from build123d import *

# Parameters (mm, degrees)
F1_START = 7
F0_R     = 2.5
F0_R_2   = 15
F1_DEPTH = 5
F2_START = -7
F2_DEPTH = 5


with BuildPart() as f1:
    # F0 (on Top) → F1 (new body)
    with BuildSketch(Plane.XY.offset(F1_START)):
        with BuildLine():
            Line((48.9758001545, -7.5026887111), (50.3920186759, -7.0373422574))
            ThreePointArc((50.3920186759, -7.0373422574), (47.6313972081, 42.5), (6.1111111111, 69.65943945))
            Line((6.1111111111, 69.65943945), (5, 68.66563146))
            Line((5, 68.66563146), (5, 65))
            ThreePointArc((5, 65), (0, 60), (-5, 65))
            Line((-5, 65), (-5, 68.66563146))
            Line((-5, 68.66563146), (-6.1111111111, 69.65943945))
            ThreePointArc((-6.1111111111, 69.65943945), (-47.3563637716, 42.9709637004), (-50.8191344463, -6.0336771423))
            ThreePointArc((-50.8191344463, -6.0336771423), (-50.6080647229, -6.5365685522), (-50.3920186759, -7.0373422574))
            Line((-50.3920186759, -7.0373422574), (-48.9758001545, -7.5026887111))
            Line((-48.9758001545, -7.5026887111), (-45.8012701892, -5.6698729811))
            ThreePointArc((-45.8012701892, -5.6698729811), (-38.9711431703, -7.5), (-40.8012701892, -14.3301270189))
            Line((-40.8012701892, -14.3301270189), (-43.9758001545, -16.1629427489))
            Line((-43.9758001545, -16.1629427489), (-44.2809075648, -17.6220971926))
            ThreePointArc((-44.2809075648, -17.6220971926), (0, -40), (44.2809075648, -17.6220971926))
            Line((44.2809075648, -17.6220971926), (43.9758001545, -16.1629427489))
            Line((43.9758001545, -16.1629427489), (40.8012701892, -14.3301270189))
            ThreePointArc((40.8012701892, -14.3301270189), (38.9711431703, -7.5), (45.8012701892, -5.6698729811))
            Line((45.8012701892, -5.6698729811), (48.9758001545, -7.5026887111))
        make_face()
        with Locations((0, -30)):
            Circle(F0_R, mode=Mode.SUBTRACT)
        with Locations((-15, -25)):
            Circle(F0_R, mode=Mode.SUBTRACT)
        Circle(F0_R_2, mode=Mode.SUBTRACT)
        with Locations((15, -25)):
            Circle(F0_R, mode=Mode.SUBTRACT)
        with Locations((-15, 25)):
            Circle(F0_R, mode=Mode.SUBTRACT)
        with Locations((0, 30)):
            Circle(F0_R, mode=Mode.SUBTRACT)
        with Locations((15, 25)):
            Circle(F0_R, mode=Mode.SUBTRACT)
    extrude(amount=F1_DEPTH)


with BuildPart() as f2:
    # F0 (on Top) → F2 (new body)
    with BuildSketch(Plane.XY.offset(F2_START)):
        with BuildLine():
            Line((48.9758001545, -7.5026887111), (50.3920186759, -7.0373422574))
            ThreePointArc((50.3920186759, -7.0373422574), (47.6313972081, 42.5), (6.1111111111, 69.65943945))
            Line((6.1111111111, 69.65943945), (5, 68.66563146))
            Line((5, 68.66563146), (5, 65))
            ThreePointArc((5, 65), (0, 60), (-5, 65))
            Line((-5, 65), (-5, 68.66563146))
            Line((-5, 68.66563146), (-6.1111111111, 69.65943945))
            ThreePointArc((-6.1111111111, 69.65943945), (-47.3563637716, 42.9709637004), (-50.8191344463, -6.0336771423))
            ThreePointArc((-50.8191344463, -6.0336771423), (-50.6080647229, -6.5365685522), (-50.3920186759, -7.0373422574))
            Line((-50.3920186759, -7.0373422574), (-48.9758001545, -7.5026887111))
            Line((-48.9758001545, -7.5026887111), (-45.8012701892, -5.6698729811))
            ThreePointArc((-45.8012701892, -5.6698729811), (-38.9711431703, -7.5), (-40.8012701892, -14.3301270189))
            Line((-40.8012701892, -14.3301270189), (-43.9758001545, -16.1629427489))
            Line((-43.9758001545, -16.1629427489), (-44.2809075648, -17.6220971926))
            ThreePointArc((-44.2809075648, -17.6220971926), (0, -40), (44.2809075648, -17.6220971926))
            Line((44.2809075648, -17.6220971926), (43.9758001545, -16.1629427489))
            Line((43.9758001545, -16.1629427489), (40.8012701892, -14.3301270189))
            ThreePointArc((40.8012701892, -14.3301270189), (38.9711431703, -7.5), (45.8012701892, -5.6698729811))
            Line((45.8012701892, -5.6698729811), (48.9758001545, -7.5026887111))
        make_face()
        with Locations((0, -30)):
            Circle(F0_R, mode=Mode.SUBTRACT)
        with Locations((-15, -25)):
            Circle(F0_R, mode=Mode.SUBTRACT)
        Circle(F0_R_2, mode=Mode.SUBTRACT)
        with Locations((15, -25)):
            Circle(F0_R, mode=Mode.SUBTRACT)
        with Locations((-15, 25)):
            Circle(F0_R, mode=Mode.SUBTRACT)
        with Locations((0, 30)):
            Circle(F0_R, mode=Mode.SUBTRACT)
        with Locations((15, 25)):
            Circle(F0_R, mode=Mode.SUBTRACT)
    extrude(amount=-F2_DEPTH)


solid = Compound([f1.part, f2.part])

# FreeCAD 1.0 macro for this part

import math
import FreeCAD as App
import Part
import Sketcher
Q = App.Units.Quantity

doc = App.newDocument("Part")
body = doc.addObject("PartDesign::Body", "Body")

# Sketch on XY plane
sketch1 = doc.addObject("Sketcher::SketchObject", "Sketch")
body.addObject(sketch1)
sketch1.AttachmentSupport = (doc.XY_Plane, [""])
sketch1.MapMode = "FlatFace"
sketch1.AttachmentOffset = App.Placement(App.Vector(0, 0, 7), App.Rotation())
sketch1.addGeometry(Part.LineSegment(App.Vector(48.9758, -7.502689, 0), App.Vector(50.392019, -7.037342, 0)), False)
sketch1.addGeometry(Part.ArcOfCircle(Part.Circle(App.Vector(0, 15, 0), App.Vector(0, 0, 1), 55), math.radians(-23.62063), math.radians(83.62063)), False)
sketch1.addGeometry(Part.LineSegment(App.Vector(6.111111, 69.659439, 0), App.Vector(5, 68.665631, 0)), False)
sketch1.addGeometry(Part.LineSegment(App.Vector(5, 68.665631, 0), App.Vector(5, 65, 0)), False)
sketch1.addGeometry(Part.ArcOfCircle(Part.Circle(App.Vector(0, 65, 0), App.Vector(0, 0, 1), 5), math.radians(180), math.radians(360)), False)
sketch1.addGeometry(Part.LineSegment(App.Vector(-5, 65, 0), App.Vector(-5, 68.665631, 0)), False)
sketch1.addGeometry(Part.LineSegment(App.Vector(-5, 68.665631, 0), App.Vector(-6.111111, 69.659439, 0)), False)
sketch1.addGeometry(Part.ArcOfCircle(Part.Circle(App.Vector(0, 15, 0), App.Vector(0, 0, 1), 55), math.radians(96.37937), math.radians(202.484315)), False)
sketch1.addGeometry(Part.ArcOfCircle(Part.Circle(App.Vector(0, 15, 0), App.Vector(0, 0, 1), 55), math.radians(-157.515685), math.radians(-156.37937)), False)
sketch1.addGeometry(Part.LineSegment(App.Vector(-50.392019, -7.037342, 0), App.Vector(-48.9758, -7.502689, 0)), False)
sketch1.addGeometry(Part.LineSegment(App.Vector(-48.9758, -7.502689, 0), App.Vector(-45.80127, -5.669873, 0)), False)
sketch1.addGeometry(Part.ArcOfCircle(Part.Circle(App.Vector(-43.30127, -10, 0), App.Vector(0, 0, 1), 5), math.radians(-60), math.radians(120)), False)
sketch1.addGeometry(Part.LineSegment(App.Vector(-40.80127, -14.330127, 0), App.Vector(-43.9758, -16.162943, 0)), False)
sketch1.addGeometry(Part.LineSegment(App.Vector(-43.9758, -16.162943, 0), App.Vector(-44.280908, -17.622097, 0)), False)
sketch1.addGeometry(Part.ArcOfCircle(Part.Circle(App.Vector(0, 15, 0), App.Vector(0, 0, 1), 55), math.radians(-143.62063), math.radians(-36.37937)), False)
sketch1.addGeometry(Part.LineSegment(App.Vector(44.280908, -17.622097, 0), App.Vector(43.9758, -16.162943, 0)), False)
sketch1.addGeometry(Part.LineSegment(App.Vector(43.9758, -16.162943, 0), App.Vector(40.80127, -14.330127, 0)), False)
sketch1.addGeometry(Part.ArcOfCircle(Part.Circle(App.Vector(43.30127, -10, 0), App.Vector(0, 0, 1), 5), math.radians(60), math.radians(240)), False)
sketch1.addGeometry(Part.LineSegment(App.Vector(45.80127, -5.669873, 0), App.Vector(48.9758, -7.502689, 0)), False)
sketch1.addGeometry(Part.Circle(App.Vector(-15, -25, 0), App.Vector(0, 0, 1), 2.5), False)
sketch1.addGeometry(Part.Circle(App.Vector(0, -30, 0), App.Vector(0, 0, 1), 2.5), False)
sketch1.addGeometry(Part.Circle(App.Vector(15, -25, 0), App.Vector(0, 0, 1), 2.5), False)
sketch1.addGeometry(Part.Circle(App.Vector(-15, 25, 0), App.Vector(0, 0, 1), 2.5), False)
sketch1.addGeometry(Part.Circle(App.Vector(0, 0, 0), App.Vector(0, 0, 1), 15), False)
sketch1.addGeometry(Part.Circle(App.Vector(0, 30, 0), App.Vector(0, 0, 1), 2.5), False)
sketch1.addGeometry(Part.Circle(App.Vector(15, 25, 0), App.Vector(0, 0, 1), 2.5), False)
sketch1.addConstraint(Sketcher.Constraint("Coincident", 0, 2, 1, 1))
sketch1.addConstraint(Sketcher.Constraint("Coincident", 1, 2, 2, 1))
sketch1.addConstraint(Sketcher.Constraint("Coincident", 2, 2, 3, 1))
sketch1.addConstraint(Sketcher.Constraint("Tangent", 3, 2, 4, 2))
sketch1.addConstraint(Sketcher.Constraint("Tangent", 4, 1, 5, 1))
sketch1.addConstraint(Sketcher.Constraint("Coincident", 5, 2, 6, 1))
sketch1.addConstraint(Sketcher.Constraint("Coincident", 6, 2, 7, 1))
sketch1.addConstraint(Sketcher.Constraint("Tangent", 7, 2, 8, 1))
sketch1.addConstraint(Sketcher.Constraint("Coincident", 8, 2, 9, 1))
sketch1.addConstraint(Sketcher.Constraint("Coincident", 9, 2, 10, 1))
sketch1.addConstraint(Sketcher.Constraint("Tangent", 10, 2, 11, 2))
sketch1.addConstraint(Sketcher.Constraint("Tangent", 11, 1, 12, 1))
sketch1.addConstraint(Sketcher.Constraint("Coincident", 12, 2, 13, 1))
sketch1.addConstraint(Sketcher.Constraint("Coincident", 13, 2, 14, 1))
sketch1.addConstraint(Sketcher.Constraint("Coincident", 14, 2, 15, 1))
sketch1.addConstraint(Sketcher.Constraint("Coincident", 15, 2, 16, 1))
sketch1.addConstraint(Sketcher.Constraint("Tangent", 16, 2, 17, 2))
sketch1.addConstraint(Sketcher.Constraint("Tangent", 17, 1, 18, 1))
sketch1.addConstraint(Sketcher.Constraint("Coincident", 18, 2, 0, 1))
sketch1.addConstraint(Sketcher.Constraint("Vertical", 3))
sketch1.addConstraint(Sketcher.Constraint("Vertical", 5))
sketch1.addConstraint(Sketcher.Constraint("Coincident", 23, 3, -1, 1))
sketch1.addConstraint(Sketcher.Constraint("Coincident", 7, 3, 1, 3))
sketch1.addConstraint(Sketcher.Constraint("Coincident", 14, 3, 1, 3))
sketch1.addConstraint(Sketcher.Constraint("Equal", 1, 7))
sketch1.addConstraint(Sketcher.Constraint("Equal", 7, 8))
sketch1.addConstraint(Sketcher.Constraint("Equal", 4, 11))
sketch1.addConstraint(Sketcher.Constraint("Equal", 8, 14))
sketch1.addConstraint(Sketcher.Constraint("Equal", 11, 17))
sketch1.addConstraint(Sketcher.Constraint("Equal", 19, 20))
sketch1.addConstraint(Sketcher.Constraint("Equal", 20, 21))
sketch1.addConstraint(Sketcher.Constraint("Equal", 21, 22))
sketch1.addConstraint(Sketcher.Constraint("Equal", 22, 24))
sketch1.addConstraint(Sketcher.Constraint("Equal", 24, 25))
sketch1.addConstraint(Sketcher.Constraint("Symmetric", 21, 3, 22, 3, -1, 1))
sketch1.addConstraint(Sketcher.Constraint("Symmetric", 20, 3, 24, 3, -1, 1))
sketch1.addConstraint(Sketcher.Constraint("Symmetric", 19, 3, 25, 3, -1, 1))
sketch1.addConstraint(Sketcher.Constraint("Symmetric", 11, 3, 17, 3, -2))
sketch1.addConstraint(Sketcher.Constraint("Symmetric", 19, 3, 21, 3, -2))
sketch1.addConstraint(Sketcher.Constraint("Symmetric", 2, 2, 5, 2, -2))
sketch1.addConstraint(Sketcher.Constraint("Symmetric", 1, 2, 6, 2, -2))
sketch1.addConstraint(Sketcher.Constraint("Symmetric", 12, 2, 15, 2, -2))
sketch1.addConstraint(Sketcher.Constraint("Symmetric", 9, 2, 18, 2, -2))
sketch1.addConstraint(Sketcher.Constraint("PointOnObject", 20, 3, -2))
sketch1.addConstraint(Sketcher.Constraint("Parallel", 10, 12))
sketch1.addConstraint(Sketcher.Constraint("Horizontal", 0, 2, 8, 2))
sketch1.addConstraint(Sketcher.Constraint("Horizontal", 13, 2, 14, 2))
sketch1.addConstraint(Sketcher.Constraint("Equal", 0, 2))
sketch1.addConstraint(Sketcher.Constraint("Equal", 10, 12))
sketch1.addConstraint(Sketcher.Constraint("Equal", 9, 13))
sketch1.addConstraint(Sketcher.Constraint("Diameter", 19, 5.0))
sketch1.addConstraint(Sketcher.Constraint("Diameter", 23, 30.0))
sketch1.addConstraint(Sketcher.Constraint("Radius", 1, 55.0))
sketch1.addConstraint(Sketcher.Constraint("Radius", 4, 5.0))
sketch1.addConstraint(Sketcher.Constraint("Angle", 10, Q("30 deg")))
sketch1.addConstraint(Sketcher.Constraint("DistanceY", -1, 1, 1, 3, 15.0))
sketch1.addConstraint(Sketcher.Constraint("DistanceY", -1, 1, 4, 3, 65.0))
sketch1.addConstraint(Sketcher.Constraint("DistanceY", 11, 3, -1, 1, 10.0))
sketch1.addConstraint(Sketcher.Constraint("DistanceX", 19, 3, -1, 1, 15.0))
sketch1.addConstraint(Sketcher.Constraint("DistanceY", 19, 3, -1, 1, 25.0))
sketch1.addConstraint(Sketcher.Constraint("DistanceY", 20, 3, -1, 1, 30.0))
sketch1.addConstraint(Sketcher.Constraint("DistanceY", 3, 2, 3, 1, 3.665631))
sketch1.addConstraint(Sketcher.Constraint("DistanceX", 9, 2, -1, 1, 48.9758))
sketch1.addConstraint(Sketcher.Constraint("DistanceY", 12, 2, 8, 2, 9.1256))
sketch1.addConstraint(Sketcher.Constraint("Distance", 0, 1.490712))
sketch1.addConstraint(Sketcher.Constraint("DistanceY", 9, 2, 7, 2, 1.469012))
pad1 = doc.addObject("PartDesign::Pad", "Pad")
body.addObject(pad1)
pad1.Profile = sketch1
pad1.Length = 5
body2 = doc.addObject("PartDesign::Body", "Body001")

# Sketch on XY plane
sketch2 = doc.addObject("Sketcher::SketchObject", "Sketch001")
body2.addObject(sketch2)
sketch2.AttachmentSupport = (doc.getObject("XY_Plane001"), [""])
sketch2.MapMode = "FlatFace"
sketch2.AttachmentOffset = App.Placement(App.Vector(0, 0, -7), App.Rotation())
sketch2.addGeometry(Part.LineSegment(App.Vector(48.9758, -7.502689, 0), App.Vector(50.392019, -7.037342, 0)), False)
sketch2.addGeometry(Part.ArcOfCircle(Part.Circle(App.Vector(0, 15, 0), App.Vector(0, 0, 1), 55), math.radians(-23.62063), math.radians(83.62063)), False)
sketch2.addGeometry(Part.LineSegment(App.Vector(6.111111, 69.659439, 0), App.Vector(5, 68.665631, 0)), False)
sketch2.addGeometry(Part.LineSegment(App.Vector(5, 68.665631, 0), App.Vector(5, 65, 0)), False)
sketch2.addGeometry(Part.ArcOfCircle(Part.Circle(App.Vector(0, 65, 0), App.Vector(0, 0, 1), 5), math.radians(180), math.radians(360)), False)
sketch2.addGeometry(Part.LineSegment(App.Vector(-5, 65, 0), App.Vector(-5, 68.665631, 0)), False)
sketch2.addGeometry(Part.LineSegment(App.Vector(-5, 68.665631, 0), App.Vector(-6.111111, 69.659439, 0)), False)
sketch2.addGeometry(Part.ArcOfCircle(Part.Circle(App.Vector(0, 15, 0), App.Vector(0, 0, 1), 55), math.radians(96.37937), math.radians(202.484315)), False)
sketch2.addGeometry(Part.ArcOfCircle(Part.Circle(App.Vector(0, 15, 0), App.Vector(0, 0, 1), 55), math.radians(-157.515685), math.radians(-156.37937)), False)
sketch2.addGeometry(Part.LineSegment(App.Vector(-50.392019, -7.037342, 0), App.Vector(-48.9758, -7.502689, 0)), False)
sketch2.addGeometry(Part.LineSegment(App.Vector(-48.9758, -7.502689, 0), App.Vector(-45.80127, -5.669873, 0)), False)
sketch2.addGeometry(Part.ArcOfCircle(Part.Circle(App.Vector(-43.30127, -10, 0), App.Vector(0, 0, 1), 5), math.radians(-60), math.radians(120)), False)
sketch2.addGeometry(Part.LineSegment(App.Vector(-40.80127, -14.330127, 0), App.Vector(-43.9758, -16.162943, 0)), False)
sketch2.addGeometry(Part.LineSegment(App.Vector(-43.9758, -16.162943, 0), App.Vector(-44.280908, -17.622097, 0)), False)
sketch2.addGeometry(Part.ArcOfCircle(Part.Circle(App.Vector(0, 15, 0), App.Vector(0, 0, 1), 55), math.radians(-143.62063), math.radians(-36.37937)), False)
sketch2.addGeometry(Part.LineSegment(App.Vector(44.280908, -17.622097, 0), App.Vector(43.9758, -16.162943, 0)), False)
sketch2.addGeometry(Part.LineSegment(App.Vector(43.9758, -16.162943, 0), App.Vector(40.80127, -14.330127, 0)), False)
sketch2.addGeometry(Part.ArcOfCircle(Part.Circle(App.Vector(43.30127, -10, 0), App.Vector(0, 0, 1), 5), math.radians(60), math.radians(240)), False)
sketch2.addGeometry(Part.LineSegment(App.Vector(45.80127, -5.669873, 0), App.Vector(48.9758, -7.502689, 0)), False)
sketch2.addGeometry(Part.Circle(App.Vector(-15, -25, 0), App.Vector(0, 0, 1), 2.5), False)
sketch2.addGeometry(Part.Circle(App.Vector(0, -30, 0), App.Vector(0, 0, 1), 2.5), False)
sketch2.addGeometry(Part.Circle(App.Vector(15, -25, 0), App.Vector(0, 0, 1), 2.5), False)
sketch2.addGeometry(Part.Circle(App.Vector(-15, 25, 0), App.Vector(0, 0, 1), 2.5), False)
sketch2.addGeometry(Part.Circle(App.Vector(0, 0, 0), App.Vector(0, 0, 1), 15), False)
sketch2.addGeometry(Part.Circle(App.Vector(0, 30, 0), App.Vector(0, 0, 1), 2.5), False)
sketch2.addGeometry(Part.Circle(App.Vector(15, 25, 0), App.Vector(0, 0, 1), 2.5), False)
sketch2.addConstraint(Sketcher.Constraint("Coincident", 0, 2, 1, 1))
sketch2.addConstraint(Sketcher.Constraint("Coincident", 1, 2, 2, 1))
sketch2.addConstraint(Sketcher.Constraint("Coincident", 2, 2, 3, 1))
sketch2.addConstraint(Sketcher.Constraint("Tangent", 3, 2, 4, 2))
sketch2.addConstraint(Sketcher.Constraint("Tangent", 4, 1, 5, 1))
sketch2.addConstraint(Sketcher.Constraint("Coincident", 5, 2, 6, 1))
sketch2.addConstraint(Sketcher.Constraint("Coincident", 6, 2, 7, 1))
sketch2.addConstraint(Sketcher.Constraint("Tangent", 7, 2, 8, 1))
sketch2.addConstraint(Sketcher.Constraint("Coincident", 8, 2, 9, 1))
sketch2.addConstraint(Sketcher.Constraint("Coincident", 9, 2, 10, 1))
sketch2.addConstraint(Sketcher.Constraint("Tangent", 10, 2, 11, 2))
sketch2.addConstraint(Sketcher.Constraint("Tangent", 11, 1, 12, 1))
sketch2.addConstraint(Sketcher.Constraint("Coincident", 12, 2, 13, 1))
sketch2.addConstraint(Sketcher.Constraint("Coincident", 13, 2, 14, 1))
sketch2.addConstraint(Sketcher.Constraint("Coincident", 14, 2, 15, 1))
sketch2.addConstraint(Sketcher.Constraint("Coincident", 15, 2, 16, 1))
sketch2.addConstraint(Sketcher.Constraint("Tangent", 16, 2, 17, 2))
sketch2.addConstraint(Sketcher.Constraint("Tangent", 17, 1, 18, 1))
sketch2.addConstraint(Sketcher.Constraint("Coincident", 18, 2, 0, 1))
sketch2.addConstraint(Sketcher.Constraint("Vertical", 3))
sketch2.addConstraint(Sketcher.Constraint("Vertical", 5))
sketch2.addConstraint(Sketcher.Constraint("Coincident", 23, 3, -1, 1))
sketch2.addConstraint(Sketcher.Constraint("Coincident", 7, 3, 1, 3))
sketch2.addConstraint(Sketcher.Constraint("Coincident", 14, 3, 1, 3))
sketch2.addConstraint(Sketcher.Constraint("Equal", 1, 7))
sketch2.addConstraint(Sketcher.Constraint("Equal", 7, 8))
sketch2.addConstraint(Sketcher.Constraint("Equal", 4, 11))
sketch2.addConstraint(Sketcher.Constraint("Equal", 8, 14))
sketch2.addConstraint(Sketcher.Constraint("Equal", 11, 17))
sketch2.addConstraint(Sketcher.Constraint("Equal", 19, 20))
sketch2.addConstraint(Sketcher.Constraint("Equal", 20, 21))
sketch2.addConstraint(Sketcher.Constraint("Equal", 21, 22))
sketch2.addConstraint(Sketcher.Constraint("Equal", 22, 24))
sketch2.addConstraint(Sketcher.Constraint("Equal", 24, 25))
sketch2.addConstraint(Sketcher.Constraint("Symmetric", 21, 3, 22, 3, -1, 1))
sketch2.addConstraint(Sketcher.Constraint("Symmetric", 20, 3, 24, 3, -1, 1))
sketch2.addConstraint(Sketcher.Constraint("Symmetric", 19, 3, 25, 3, -1, 1))
sketch2.addConstraint(Sketcher.Constraint("Symmetric", 11, 3, 17, 3, -2))
sketch2.addConstraint(Sketcher.Constraint("Symmetric", 19, 3, 21, 3, -2))
sketch2.addConstraint(Sketcher.Constraint("Symmetric", 2, 2, 5, 2, -2))
sketch2.addConstraint(Sketcher.Constraint("Symmetric", 1, 2, 6, 2, -2))
sketch2.addConstraint(Sketcher.Constraint("Symmetric", 12, 2, 15, 2, -2))
sketch2.addConstraint(Sketcher.Constraint("Symmetric", 9, 2, 18, 2, -2))
sketch2.addConstraint(Sketcher.Constraint("PointOnObject", 20, 3, -2))
sketch2.addConstraint(Sketcher.Constraint("Parallel", 10, 12))
sketch2.addConstraint(Sketcher.Constraint("Horizontal", 0, 2, 8, 2))
sketch2.addConstraint(Sketcher.Constraint("Horizontal", 13, 2, 14, 2))
sketch2.addConstraint(Sketcher.Constraint("Equal", 0, 2))
sketch2.addConstraint(Sketcher.Constraint("Equal", 10, 12))
sketch2.addConstraint(Sketcher.Constraint("Equal", 9, 13))
sketch2.addConstraint(Sketcher.Constraint("Diameter", 19, 5.0))
sketch2.addConstraint(Sketcher.Constraint("Diameter", 23, 30.0))
sketch2.addConstraint(Sketcher.Constraint("Radius", 1, 55.0))
sketch2.addConstraint(Sketcher.Constraint("Radius", 4, 5.0))
sketch2.addConstraint(Sketcher.Constraint("Angle", 10, Q("30 deg")))
sketch2.addConstraint(Sketcher.Constraint("DistanceY", -1, 1, 1, 3, 15.0))
sketch2.addConstraint(Sketcher.Constraint("DistanceY", -1, 1, 4, 3, 65.0))
sketch2.addConstraint(Sketcher.Constraint("DistanceY", 11, 3, -1, 1, 10.0))
sketch2.addConstraint(Sketcher.Constraint("DistanceX", 19, 3, -1, 1, 15.0))
sketch2.addConstraint(Sketcher.Constraint("DistanceY", 19, 3, -1, 1, 25.0))
sketch2.addConstraint(Sketcher.Constraint("DistanceY", 20, 3, -1, 1, 30.0))
sketch2.addConstraint(Sketcher.Constraint("DistanceY", 3, 2, 3, 1, 3.665631))
sketch2.addConstraint(Sketcher.Constraint("DistanceX", 9, 2, -1, 1, 48.9758))
sketch2.addConstraint(Sketcher.Constraint("DistanceY", 12, 2, 8, 2, 9.1256))
sketch2.addConstraint(Sketcher.Constraint("Distance", 0, 1.490712))
sketch2.addConstraint(Sketcher.Constraint("DistanceY", 9, 2, 7, 2, 1.469012))
pad2 = doc.addObject("PartDesign::Pad", "Pad001")
body2.addObject(pad2)
pad2.Profile = sketch2
pad2.Length = 5
pad2.Reversed = True

doc.recompute()
